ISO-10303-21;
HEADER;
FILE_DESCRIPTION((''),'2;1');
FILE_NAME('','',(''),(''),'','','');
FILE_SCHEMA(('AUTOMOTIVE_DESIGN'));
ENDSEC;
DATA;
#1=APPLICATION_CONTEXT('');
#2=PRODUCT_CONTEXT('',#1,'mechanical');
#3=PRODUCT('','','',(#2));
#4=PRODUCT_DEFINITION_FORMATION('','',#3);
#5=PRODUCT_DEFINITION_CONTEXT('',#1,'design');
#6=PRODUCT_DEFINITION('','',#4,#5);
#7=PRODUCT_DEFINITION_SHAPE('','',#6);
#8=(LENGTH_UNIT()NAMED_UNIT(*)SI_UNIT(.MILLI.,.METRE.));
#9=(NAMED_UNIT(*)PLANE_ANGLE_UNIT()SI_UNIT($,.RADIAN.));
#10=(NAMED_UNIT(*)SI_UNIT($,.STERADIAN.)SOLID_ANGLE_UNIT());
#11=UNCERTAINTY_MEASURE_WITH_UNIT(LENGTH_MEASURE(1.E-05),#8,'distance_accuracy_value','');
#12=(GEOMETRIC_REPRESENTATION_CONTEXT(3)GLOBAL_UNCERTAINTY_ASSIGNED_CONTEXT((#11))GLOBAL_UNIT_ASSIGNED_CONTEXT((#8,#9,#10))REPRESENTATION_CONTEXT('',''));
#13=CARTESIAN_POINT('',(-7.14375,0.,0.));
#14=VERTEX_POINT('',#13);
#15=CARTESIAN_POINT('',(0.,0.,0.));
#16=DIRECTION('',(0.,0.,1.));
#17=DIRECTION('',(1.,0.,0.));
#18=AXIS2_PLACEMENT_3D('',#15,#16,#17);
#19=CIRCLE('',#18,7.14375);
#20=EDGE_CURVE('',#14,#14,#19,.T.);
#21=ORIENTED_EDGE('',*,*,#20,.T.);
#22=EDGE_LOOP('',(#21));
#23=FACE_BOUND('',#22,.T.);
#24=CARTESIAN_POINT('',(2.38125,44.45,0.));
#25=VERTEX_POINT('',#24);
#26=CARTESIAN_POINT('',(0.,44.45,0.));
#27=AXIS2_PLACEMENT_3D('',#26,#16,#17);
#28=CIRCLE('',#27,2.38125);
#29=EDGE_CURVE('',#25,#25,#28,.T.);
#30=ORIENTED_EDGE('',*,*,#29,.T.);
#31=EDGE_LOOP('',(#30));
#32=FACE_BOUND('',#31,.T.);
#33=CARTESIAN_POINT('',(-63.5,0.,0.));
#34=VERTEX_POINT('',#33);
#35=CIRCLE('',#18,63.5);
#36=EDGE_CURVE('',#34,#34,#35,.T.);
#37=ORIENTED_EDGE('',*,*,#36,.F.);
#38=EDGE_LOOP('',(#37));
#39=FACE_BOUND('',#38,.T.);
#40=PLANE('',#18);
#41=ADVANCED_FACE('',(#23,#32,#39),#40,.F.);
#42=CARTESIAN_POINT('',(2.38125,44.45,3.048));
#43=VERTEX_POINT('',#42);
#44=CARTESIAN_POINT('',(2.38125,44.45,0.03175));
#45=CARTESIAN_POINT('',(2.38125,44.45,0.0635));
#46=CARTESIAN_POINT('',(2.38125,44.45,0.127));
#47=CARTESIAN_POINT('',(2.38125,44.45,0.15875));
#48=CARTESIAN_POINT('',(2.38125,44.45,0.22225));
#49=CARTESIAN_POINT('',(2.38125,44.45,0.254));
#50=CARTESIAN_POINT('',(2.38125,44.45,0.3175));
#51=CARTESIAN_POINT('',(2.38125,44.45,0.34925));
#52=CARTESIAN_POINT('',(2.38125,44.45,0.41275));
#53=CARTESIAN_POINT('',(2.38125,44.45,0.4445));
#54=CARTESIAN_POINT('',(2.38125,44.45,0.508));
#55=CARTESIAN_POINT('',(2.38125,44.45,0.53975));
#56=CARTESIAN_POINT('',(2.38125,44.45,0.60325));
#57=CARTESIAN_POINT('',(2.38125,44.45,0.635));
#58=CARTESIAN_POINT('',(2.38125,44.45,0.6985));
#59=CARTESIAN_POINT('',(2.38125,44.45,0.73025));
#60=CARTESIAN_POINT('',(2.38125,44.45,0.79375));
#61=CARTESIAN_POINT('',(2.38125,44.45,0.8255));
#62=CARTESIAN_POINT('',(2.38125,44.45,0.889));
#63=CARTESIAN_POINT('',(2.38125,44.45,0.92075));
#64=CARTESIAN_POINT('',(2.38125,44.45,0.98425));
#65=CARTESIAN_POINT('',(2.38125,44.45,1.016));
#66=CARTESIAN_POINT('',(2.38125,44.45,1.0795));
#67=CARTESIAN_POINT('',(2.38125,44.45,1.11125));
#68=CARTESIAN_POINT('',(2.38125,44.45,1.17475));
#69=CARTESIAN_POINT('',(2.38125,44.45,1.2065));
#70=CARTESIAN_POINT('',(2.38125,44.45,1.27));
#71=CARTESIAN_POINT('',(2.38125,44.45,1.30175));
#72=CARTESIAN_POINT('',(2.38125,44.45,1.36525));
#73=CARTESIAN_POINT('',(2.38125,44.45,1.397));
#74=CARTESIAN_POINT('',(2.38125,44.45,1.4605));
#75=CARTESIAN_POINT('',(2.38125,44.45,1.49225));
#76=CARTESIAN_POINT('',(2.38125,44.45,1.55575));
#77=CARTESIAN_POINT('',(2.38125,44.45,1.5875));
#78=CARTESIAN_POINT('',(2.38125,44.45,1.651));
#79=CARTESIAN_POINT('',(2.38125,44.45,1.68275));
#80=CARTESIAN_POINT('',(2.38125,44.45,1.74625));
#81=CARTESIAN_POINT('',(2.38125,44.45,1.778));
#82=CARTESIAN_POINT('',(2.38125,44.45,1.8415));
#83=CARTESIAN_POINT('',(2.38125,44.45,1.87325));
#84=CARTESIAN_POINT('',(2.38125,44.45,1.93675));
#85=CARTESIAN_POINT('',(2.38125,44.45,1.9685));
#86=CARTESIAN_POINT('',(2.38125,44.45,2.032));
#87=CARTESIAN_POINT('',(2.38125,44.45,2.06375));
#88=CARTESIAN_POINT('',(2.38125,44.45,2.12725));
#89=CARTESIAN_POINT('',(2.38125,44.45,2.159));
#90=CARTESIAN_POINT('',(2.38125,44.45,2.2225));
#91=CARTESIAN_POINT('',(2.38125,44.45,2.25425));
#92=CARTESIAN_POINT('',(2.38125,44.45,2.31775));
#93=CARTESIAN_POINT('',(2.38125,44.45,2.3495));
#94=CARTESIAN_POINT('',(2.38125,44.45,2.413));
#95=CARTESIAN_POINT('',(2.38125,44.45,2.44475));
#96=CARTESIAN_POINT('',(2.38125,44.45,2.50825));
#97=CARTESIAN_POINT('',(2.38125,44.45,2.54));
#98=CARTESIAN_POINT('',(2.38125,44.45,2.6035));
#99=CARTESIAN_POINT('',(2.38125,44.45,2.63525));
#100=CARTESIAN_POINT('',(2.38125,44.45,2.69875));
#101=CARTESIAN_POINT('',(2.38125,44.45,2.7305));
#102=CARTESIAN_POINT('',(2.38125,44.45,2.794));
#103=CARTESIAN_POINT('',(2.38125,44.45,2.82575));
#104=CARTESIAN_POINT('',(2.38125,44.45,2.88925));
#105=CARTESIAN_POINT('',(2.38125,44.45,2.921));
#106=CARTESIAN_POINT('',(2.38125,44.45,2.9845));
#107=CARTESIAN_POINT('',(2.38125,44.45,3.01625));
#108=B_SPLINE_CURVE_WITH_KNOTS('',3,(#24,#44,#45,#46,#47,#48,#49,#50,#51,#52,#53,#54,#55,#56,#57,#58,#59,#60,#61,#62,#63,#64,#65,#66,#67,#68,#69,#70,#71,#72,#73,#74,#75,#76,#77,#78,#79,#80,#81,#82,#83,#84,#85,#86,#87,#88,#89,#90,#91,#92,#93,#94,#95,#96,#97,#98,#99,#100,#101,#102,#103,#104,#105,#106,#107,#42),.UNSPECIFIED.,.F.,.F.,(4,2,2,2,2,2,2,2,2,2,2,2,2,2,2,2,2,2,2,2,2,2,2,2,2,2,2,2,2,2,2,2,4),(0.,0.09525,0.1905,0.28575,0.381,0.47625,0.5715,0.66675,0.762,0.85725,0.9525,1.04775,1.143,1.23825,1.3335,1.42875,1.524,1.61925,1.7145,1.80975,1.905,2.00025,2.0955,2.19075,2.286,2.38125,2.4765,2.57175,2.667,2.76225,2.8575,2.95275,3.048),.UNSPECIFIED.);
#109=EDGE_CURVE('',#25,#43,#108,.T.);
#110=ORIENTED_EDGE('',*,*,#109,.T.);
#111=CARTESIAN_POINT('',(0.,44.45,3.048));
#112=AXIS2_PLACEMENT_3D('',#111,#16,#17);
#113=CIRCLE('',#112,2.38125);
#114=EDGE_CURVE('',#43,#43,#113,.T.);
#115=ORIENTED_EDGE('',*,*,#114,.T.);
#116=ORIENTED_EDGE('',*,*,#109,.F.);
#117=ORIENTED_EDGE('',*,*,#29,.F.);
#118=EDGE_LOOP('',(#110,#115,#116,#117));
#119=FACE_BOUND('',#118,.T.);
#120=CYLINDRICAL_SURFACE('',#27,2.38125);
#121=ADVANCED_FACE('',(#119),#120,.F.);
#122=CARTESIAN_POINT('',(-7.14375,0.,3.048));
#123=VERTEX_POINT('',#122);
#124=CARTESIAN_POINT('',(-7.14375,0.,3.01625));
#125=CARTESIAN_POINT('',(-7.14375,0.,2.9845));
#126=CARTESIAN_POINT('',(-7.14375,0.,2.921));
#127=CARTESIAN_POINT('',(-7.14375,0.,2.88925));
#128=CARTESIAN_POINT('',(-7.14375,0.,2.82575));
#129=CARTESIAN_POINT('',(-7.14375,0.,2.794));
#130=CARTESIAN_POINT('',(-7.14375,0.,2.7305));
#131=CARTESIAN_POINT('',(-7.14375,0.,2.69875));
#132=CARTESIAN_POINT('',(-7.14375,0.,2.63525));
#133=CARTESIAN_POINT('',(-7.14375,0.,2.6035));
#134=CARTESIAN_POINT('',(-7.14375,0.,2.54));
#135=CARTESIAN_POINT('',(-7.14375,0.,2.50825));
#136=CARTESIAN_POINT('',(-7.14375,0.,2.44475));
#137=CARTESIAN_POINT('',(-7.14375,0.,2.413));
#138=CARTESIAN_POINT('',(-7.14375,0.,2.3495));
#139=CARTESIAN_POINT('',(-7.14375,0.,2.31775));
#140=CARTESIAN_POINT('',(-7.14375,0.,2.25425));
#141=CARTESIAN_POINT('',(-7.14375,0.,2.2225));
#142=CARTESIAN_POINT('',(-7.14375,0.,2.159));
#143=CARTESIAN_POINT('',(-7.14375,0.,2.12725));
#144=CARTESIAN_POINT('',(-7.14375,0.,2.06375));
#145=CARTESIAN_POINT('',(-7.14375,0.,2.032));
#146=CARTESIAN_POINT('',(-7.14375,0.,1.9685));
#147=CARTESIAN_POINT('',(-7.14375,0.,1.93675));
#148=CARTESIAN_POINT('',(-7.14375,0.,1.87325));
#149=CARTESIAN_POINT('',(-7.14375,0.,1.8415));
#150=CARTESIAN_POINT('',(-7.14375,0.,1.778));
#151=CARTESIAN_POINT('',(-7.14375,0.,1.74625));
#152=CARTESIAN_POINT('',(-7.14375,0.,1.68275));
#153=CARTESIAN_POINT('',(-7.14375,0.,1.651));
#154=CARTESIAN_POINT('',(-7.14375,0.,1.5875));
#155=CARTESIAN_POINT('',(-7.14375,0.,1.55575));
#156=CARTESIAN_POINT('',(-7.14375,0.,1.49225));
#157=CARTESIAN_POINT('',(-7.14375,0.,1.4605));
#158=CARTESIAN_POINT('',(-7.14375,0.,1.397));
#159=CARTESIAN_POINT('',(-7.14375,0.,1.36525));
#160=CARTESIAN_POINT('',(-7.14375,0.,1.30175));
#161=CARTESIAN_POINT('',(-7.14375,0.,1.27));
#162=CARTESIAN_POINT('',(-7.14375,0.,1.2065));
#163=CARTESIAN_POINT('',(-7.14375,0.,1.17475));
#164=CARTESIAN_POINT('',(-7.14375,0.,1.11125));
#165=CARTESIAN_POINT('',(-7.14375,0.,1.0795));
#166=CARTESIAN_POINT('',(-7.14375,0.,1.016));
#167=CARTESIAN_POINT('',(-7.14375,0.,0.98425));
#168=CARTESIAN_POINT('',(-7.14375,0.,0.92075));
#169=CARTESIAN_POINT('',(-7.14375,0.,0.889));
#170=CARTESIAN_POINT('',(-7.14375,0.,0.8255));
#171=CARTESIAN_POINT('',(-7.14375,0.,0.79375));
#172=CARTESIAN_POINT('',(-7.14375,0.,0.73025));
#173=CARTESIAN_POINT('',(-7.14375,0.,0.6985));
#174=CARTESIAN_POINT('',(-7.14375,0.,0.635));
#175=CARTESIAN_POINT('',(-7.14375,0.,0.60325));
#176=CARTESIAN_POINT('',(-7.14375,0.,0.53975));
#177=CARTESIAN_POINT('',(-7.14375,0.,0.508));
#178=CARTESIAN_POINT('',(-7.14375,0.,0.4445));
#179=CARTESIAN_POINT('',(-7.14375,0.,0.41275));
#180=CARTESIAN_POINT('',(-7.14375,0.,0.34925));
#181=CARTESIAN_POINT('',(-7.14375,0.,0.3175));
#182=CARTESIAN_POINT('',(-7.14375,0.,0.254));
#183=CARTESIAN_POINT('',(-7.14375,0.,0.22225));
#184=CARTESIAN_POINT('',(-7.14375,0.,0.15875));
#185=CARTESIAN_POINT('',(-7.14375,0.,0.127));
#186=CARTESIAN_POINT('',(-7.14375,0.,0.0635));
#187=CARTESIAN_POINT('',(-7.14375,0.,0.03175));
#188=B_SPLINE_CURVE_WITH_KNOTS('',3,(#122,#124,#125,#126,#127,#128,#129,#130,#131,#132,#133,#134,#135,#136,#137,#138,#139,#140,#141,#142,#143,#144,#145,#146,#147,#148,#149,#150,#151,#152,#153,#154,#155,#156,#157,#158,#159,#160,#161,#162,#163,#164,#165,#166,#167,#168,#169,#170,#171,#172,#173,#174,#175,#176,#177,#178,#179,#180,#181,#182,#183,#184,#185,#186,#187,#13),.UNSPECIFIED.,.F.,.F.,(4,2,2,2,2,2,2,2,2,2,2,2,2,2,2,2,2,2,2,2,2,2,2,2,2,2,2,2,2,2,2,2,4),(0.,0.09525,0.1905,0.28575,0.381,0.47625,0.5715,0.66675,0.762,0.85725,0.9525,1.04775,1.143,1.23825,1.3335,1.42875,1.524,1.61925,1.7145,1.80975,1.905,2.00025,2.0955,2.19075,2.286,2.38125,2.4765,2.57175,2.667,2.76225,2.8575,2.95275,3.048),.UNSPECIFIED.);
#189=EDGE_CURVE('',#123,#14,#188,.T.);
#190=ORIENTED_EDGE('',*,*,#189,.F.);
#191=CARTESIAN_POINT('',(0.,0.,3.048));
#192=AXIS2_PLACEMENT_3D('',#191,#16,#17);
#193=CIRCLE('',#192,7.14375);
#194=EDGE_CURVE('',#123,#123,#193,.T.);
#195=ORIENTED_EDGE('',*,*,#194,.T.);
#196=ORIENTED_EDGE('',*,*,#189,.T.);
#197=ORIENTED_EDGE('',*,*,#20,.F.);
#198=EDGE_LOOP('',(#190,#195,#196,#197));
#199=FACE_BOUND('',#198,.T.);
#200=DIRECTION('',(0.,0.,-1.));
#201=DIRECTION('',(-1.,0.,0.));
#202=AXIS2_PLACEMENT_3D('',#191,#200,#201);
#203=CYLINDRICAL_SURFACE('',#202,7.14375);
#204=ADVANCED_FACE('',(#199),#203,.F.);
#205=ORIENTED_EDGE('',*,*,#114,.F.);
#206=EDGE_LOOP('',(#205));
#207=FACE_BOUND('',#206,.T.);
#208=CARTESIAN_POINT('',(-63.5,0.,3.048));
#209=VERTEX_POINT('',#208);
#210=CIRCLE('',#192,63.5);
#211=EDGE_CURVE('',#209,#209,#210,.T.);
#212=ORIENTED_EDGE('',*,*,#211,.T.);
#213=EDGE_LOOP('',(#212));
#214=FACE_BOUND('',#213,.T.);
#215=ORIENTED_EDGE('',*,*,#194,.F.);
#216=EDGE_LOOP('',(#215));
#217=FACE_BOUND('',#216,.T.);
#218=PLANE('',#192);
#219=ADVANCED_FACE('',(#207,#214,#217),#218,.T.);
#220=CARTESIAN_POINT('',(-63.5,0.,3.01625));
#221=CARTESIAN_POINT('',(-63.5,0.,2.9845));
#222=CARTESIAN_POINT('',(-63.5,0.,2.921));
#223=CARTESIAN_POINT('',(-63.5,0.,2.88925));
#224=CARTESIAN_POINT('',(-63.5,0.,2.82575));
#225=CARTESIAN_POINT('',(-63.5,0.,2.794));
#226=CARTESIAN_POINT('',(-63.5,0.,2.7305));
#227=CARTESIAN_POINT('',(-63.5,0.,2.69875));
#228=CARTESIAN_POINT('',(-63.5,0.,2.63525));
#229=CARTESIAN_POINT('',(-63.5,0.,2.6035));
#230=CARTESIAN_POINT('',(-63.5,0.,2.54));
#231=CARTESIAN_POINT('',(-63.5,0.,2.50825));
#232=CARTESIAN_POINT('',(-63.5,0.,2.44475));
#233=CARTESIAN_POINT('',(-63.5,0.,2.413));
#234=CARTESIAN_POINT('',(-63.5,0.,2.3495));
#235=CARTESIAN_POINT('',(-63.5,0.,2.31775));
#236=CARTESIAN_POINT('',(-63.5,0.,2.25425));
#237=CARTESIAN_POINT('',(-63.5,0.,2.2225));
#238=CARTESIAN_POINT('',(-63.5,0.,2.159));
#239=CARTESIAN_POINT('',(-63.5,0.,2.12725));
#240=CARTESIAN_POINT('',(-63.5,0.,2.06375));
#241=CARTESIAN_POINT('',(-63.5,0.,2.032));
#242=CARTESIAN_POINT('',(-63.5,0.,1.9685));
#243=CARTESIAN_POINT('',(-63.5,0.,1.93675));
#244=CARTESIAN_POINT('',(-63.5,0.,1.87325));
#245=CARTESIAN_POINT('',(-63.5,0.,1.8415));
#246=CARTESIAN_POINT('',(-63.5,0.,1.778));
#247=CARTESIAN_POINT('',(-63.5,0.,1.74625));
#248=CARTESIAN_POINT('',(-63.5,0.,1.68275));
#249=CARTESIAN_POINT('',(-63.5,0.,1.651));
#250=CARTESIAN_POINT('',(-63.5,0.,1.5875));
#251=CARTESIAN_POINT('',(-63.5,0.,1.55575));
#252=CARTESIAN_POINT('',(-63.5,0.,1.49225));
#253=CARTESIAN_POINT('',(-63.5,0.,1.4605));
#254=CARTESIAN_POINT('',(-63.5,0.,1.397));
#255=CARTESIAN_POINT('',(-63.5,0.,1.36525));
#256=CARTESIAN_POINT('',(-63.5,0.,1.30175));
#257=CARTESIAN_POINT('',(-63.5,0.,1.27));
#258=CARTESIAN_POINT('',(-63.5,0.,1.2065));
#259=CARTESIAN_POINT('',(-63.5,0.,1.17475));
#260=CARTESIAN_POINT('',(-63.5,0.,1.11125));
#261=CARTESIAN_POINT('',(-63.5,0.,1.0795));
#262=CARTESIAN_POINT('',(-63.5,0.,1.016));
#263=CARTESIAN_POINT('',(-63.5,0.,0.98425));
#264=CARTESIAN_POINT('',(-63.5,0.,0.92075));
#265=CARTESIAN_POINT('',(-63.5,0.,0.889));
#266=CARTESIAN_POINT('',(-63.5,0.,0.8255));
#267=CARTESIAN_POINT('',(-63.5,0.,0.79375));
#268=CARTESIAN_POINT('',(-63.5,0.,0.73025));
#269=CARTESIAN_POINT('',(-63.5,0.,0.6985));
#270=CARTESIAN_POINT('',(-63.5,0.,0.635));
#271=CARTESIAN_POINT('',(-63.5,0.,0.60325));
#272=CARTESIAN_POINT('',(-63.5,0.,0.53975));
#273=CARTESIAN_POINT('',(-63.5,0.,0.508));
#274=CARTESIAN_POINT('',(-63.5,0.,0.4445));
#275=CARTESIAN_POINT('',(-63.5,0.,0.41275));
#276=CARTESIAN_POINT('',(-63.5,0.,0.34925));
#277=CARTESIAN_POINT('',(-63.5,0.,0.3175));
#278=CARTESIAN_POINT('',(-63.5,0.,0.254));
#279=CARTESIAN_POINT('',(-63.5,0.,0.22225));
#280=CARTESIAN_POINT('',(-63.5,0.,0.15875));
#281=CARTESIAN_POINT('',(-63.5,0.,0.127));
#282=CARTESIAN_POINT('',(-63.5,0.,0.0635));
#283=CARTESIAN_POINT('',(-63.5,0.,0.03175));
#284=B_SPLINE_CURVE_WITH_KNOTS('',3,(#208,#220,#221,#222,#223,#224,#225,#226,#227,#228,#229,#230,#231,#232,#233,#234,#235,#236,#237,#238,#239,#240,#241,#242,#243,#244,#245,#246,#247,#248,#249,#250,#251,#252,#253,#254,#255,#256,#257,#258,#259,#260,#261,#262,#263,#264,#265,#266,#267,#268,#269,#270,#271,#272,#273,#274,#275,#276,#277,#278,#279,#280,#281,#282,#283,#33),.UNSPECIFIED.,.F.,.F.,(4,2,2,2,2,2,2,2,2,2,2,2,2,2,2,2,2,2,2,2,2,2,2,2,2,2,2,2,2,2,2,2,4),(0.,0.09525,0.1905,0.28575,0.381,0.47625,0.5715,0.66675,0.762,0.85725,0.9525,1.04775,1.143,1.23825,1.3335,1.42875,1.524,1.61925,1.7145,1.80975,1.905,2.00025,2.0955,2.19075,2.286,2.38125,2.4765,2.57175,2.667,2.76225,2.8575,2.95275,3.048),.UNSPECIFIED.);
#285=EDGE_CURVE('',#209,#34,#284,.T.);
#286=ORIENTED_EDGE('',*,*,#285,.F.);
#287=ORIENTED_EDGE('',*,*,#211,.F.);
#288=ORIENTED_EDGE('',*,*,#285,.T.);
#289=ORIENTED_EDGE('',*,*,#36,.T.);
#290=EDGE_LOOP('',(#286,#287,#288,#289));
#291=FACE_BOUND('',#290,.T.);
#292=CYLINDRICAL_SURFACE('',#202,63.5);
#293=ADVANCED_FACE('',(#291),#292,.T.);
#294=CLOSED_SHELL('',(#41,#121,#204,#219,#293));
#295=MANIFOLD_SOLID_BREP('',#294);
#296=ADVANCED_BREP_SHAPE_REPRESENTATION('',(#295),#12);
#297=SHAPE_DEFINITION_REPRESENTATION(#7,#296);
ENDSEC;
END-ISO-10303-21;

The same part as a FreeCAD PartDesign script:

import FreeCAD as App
import Part
import Sketcher
from FreeCAD import Vector
Q = App.Units.Quantity

doc = App.newDocument("Part")
params = doc.addObject("Spreadsheet::Sheet", "Params")
for row, (alias, value) in enumerate([
    ("sketch1_diameter", "5 in"),
    ("sketch1_diameter2", "0.5625 in"),
    ("pad1_length", "0.12 in"),
    ("sketch2_diameter", "0.1875 in"),
], start=1):
    params.set(f"A{row}", alias)
    params.set(f"B{row}", "=" + value)
    params.setAlias(f"B{row}", alias)

body = doc.addObject("PartDesign::Body", "Body")

# Sketch on XY plane
sketch1 = body.newObject("Sketcher::SketchObject", "Sketch")
sketch1.AttachmentSupport = (doc.getObject("XY_Plane"), [""])
sketch1.MapMode = "FlatFace"
sketch1.addGeometry(Part.Circle(Vector(0, 0, 0), Vector(0, 0, 1), 64), False)
sketch1.addGeometry(Part.Circle(Vector(0, 0, 0), Vector(0, 0, 1), 7), False)
sketch1.addConstraint(Sketcher.Constraint("Coincident", 0, 3, -1, 1))
sketch1.addConstraint(Sketcher.Constraint("Coincident", 1, 3, -1, 1))
sketch1.addConstraint(Sketcher.Constraint("Diameter", 0, Q("5 in")))
sketch1.addConstraint(Sketcher.Constraint("Diameter", 1, Q("0.5625 in")))
sketch1.setExpression("Constraints[2]", "Params.sketch1_diameter")
sketch1.setExpression("Constraints[3]", "Params.sketch1_diameter2")
pad1 = body.newObject("PartDesign::Pad", "Pad")
pad1.Profile = sketch1
pad1.setExpression("Length", "Params.pad1_length")

# Sketch on XY plane
sketch2 = body.newObject("Sketcher::SketchObject", "Sketch001")
sketch2.AttachmentSupport = (doc.getObject("XY_Plane"), [""])
sketch2.MapMode = "FlatFace"
sketch2.AttachmentOffset = App.Placement(Vector(0, 0, 0.12 * 25.4), App.Rotation())
sketch2.addGeometry(Part.Circle(Vector(0, 44.5, 0), Vector(0, 0, 1), 2.4), False)
sketch2.addConstraint(Sketcher.Constraint("PointOnObject", 0, 3, -2))
sketch2.addConstraint(Sketcher.Constraint("Diameter", 0, Q("0.1875 in")))
sketch2.addConstraint(Sketcher.Constraint("DistanceY", -1, 1, 0, 3, Q("1.75 in")))
sketch2.setExpression("Constraints[1]", "Params.sketch2_diameter")
pocket1 = body.newObject("PartDesign::Pocket", "Pocket")
pocket1.Profile = sketch2
pocket1.Type = "ThroughAll"

doc.recompute()
